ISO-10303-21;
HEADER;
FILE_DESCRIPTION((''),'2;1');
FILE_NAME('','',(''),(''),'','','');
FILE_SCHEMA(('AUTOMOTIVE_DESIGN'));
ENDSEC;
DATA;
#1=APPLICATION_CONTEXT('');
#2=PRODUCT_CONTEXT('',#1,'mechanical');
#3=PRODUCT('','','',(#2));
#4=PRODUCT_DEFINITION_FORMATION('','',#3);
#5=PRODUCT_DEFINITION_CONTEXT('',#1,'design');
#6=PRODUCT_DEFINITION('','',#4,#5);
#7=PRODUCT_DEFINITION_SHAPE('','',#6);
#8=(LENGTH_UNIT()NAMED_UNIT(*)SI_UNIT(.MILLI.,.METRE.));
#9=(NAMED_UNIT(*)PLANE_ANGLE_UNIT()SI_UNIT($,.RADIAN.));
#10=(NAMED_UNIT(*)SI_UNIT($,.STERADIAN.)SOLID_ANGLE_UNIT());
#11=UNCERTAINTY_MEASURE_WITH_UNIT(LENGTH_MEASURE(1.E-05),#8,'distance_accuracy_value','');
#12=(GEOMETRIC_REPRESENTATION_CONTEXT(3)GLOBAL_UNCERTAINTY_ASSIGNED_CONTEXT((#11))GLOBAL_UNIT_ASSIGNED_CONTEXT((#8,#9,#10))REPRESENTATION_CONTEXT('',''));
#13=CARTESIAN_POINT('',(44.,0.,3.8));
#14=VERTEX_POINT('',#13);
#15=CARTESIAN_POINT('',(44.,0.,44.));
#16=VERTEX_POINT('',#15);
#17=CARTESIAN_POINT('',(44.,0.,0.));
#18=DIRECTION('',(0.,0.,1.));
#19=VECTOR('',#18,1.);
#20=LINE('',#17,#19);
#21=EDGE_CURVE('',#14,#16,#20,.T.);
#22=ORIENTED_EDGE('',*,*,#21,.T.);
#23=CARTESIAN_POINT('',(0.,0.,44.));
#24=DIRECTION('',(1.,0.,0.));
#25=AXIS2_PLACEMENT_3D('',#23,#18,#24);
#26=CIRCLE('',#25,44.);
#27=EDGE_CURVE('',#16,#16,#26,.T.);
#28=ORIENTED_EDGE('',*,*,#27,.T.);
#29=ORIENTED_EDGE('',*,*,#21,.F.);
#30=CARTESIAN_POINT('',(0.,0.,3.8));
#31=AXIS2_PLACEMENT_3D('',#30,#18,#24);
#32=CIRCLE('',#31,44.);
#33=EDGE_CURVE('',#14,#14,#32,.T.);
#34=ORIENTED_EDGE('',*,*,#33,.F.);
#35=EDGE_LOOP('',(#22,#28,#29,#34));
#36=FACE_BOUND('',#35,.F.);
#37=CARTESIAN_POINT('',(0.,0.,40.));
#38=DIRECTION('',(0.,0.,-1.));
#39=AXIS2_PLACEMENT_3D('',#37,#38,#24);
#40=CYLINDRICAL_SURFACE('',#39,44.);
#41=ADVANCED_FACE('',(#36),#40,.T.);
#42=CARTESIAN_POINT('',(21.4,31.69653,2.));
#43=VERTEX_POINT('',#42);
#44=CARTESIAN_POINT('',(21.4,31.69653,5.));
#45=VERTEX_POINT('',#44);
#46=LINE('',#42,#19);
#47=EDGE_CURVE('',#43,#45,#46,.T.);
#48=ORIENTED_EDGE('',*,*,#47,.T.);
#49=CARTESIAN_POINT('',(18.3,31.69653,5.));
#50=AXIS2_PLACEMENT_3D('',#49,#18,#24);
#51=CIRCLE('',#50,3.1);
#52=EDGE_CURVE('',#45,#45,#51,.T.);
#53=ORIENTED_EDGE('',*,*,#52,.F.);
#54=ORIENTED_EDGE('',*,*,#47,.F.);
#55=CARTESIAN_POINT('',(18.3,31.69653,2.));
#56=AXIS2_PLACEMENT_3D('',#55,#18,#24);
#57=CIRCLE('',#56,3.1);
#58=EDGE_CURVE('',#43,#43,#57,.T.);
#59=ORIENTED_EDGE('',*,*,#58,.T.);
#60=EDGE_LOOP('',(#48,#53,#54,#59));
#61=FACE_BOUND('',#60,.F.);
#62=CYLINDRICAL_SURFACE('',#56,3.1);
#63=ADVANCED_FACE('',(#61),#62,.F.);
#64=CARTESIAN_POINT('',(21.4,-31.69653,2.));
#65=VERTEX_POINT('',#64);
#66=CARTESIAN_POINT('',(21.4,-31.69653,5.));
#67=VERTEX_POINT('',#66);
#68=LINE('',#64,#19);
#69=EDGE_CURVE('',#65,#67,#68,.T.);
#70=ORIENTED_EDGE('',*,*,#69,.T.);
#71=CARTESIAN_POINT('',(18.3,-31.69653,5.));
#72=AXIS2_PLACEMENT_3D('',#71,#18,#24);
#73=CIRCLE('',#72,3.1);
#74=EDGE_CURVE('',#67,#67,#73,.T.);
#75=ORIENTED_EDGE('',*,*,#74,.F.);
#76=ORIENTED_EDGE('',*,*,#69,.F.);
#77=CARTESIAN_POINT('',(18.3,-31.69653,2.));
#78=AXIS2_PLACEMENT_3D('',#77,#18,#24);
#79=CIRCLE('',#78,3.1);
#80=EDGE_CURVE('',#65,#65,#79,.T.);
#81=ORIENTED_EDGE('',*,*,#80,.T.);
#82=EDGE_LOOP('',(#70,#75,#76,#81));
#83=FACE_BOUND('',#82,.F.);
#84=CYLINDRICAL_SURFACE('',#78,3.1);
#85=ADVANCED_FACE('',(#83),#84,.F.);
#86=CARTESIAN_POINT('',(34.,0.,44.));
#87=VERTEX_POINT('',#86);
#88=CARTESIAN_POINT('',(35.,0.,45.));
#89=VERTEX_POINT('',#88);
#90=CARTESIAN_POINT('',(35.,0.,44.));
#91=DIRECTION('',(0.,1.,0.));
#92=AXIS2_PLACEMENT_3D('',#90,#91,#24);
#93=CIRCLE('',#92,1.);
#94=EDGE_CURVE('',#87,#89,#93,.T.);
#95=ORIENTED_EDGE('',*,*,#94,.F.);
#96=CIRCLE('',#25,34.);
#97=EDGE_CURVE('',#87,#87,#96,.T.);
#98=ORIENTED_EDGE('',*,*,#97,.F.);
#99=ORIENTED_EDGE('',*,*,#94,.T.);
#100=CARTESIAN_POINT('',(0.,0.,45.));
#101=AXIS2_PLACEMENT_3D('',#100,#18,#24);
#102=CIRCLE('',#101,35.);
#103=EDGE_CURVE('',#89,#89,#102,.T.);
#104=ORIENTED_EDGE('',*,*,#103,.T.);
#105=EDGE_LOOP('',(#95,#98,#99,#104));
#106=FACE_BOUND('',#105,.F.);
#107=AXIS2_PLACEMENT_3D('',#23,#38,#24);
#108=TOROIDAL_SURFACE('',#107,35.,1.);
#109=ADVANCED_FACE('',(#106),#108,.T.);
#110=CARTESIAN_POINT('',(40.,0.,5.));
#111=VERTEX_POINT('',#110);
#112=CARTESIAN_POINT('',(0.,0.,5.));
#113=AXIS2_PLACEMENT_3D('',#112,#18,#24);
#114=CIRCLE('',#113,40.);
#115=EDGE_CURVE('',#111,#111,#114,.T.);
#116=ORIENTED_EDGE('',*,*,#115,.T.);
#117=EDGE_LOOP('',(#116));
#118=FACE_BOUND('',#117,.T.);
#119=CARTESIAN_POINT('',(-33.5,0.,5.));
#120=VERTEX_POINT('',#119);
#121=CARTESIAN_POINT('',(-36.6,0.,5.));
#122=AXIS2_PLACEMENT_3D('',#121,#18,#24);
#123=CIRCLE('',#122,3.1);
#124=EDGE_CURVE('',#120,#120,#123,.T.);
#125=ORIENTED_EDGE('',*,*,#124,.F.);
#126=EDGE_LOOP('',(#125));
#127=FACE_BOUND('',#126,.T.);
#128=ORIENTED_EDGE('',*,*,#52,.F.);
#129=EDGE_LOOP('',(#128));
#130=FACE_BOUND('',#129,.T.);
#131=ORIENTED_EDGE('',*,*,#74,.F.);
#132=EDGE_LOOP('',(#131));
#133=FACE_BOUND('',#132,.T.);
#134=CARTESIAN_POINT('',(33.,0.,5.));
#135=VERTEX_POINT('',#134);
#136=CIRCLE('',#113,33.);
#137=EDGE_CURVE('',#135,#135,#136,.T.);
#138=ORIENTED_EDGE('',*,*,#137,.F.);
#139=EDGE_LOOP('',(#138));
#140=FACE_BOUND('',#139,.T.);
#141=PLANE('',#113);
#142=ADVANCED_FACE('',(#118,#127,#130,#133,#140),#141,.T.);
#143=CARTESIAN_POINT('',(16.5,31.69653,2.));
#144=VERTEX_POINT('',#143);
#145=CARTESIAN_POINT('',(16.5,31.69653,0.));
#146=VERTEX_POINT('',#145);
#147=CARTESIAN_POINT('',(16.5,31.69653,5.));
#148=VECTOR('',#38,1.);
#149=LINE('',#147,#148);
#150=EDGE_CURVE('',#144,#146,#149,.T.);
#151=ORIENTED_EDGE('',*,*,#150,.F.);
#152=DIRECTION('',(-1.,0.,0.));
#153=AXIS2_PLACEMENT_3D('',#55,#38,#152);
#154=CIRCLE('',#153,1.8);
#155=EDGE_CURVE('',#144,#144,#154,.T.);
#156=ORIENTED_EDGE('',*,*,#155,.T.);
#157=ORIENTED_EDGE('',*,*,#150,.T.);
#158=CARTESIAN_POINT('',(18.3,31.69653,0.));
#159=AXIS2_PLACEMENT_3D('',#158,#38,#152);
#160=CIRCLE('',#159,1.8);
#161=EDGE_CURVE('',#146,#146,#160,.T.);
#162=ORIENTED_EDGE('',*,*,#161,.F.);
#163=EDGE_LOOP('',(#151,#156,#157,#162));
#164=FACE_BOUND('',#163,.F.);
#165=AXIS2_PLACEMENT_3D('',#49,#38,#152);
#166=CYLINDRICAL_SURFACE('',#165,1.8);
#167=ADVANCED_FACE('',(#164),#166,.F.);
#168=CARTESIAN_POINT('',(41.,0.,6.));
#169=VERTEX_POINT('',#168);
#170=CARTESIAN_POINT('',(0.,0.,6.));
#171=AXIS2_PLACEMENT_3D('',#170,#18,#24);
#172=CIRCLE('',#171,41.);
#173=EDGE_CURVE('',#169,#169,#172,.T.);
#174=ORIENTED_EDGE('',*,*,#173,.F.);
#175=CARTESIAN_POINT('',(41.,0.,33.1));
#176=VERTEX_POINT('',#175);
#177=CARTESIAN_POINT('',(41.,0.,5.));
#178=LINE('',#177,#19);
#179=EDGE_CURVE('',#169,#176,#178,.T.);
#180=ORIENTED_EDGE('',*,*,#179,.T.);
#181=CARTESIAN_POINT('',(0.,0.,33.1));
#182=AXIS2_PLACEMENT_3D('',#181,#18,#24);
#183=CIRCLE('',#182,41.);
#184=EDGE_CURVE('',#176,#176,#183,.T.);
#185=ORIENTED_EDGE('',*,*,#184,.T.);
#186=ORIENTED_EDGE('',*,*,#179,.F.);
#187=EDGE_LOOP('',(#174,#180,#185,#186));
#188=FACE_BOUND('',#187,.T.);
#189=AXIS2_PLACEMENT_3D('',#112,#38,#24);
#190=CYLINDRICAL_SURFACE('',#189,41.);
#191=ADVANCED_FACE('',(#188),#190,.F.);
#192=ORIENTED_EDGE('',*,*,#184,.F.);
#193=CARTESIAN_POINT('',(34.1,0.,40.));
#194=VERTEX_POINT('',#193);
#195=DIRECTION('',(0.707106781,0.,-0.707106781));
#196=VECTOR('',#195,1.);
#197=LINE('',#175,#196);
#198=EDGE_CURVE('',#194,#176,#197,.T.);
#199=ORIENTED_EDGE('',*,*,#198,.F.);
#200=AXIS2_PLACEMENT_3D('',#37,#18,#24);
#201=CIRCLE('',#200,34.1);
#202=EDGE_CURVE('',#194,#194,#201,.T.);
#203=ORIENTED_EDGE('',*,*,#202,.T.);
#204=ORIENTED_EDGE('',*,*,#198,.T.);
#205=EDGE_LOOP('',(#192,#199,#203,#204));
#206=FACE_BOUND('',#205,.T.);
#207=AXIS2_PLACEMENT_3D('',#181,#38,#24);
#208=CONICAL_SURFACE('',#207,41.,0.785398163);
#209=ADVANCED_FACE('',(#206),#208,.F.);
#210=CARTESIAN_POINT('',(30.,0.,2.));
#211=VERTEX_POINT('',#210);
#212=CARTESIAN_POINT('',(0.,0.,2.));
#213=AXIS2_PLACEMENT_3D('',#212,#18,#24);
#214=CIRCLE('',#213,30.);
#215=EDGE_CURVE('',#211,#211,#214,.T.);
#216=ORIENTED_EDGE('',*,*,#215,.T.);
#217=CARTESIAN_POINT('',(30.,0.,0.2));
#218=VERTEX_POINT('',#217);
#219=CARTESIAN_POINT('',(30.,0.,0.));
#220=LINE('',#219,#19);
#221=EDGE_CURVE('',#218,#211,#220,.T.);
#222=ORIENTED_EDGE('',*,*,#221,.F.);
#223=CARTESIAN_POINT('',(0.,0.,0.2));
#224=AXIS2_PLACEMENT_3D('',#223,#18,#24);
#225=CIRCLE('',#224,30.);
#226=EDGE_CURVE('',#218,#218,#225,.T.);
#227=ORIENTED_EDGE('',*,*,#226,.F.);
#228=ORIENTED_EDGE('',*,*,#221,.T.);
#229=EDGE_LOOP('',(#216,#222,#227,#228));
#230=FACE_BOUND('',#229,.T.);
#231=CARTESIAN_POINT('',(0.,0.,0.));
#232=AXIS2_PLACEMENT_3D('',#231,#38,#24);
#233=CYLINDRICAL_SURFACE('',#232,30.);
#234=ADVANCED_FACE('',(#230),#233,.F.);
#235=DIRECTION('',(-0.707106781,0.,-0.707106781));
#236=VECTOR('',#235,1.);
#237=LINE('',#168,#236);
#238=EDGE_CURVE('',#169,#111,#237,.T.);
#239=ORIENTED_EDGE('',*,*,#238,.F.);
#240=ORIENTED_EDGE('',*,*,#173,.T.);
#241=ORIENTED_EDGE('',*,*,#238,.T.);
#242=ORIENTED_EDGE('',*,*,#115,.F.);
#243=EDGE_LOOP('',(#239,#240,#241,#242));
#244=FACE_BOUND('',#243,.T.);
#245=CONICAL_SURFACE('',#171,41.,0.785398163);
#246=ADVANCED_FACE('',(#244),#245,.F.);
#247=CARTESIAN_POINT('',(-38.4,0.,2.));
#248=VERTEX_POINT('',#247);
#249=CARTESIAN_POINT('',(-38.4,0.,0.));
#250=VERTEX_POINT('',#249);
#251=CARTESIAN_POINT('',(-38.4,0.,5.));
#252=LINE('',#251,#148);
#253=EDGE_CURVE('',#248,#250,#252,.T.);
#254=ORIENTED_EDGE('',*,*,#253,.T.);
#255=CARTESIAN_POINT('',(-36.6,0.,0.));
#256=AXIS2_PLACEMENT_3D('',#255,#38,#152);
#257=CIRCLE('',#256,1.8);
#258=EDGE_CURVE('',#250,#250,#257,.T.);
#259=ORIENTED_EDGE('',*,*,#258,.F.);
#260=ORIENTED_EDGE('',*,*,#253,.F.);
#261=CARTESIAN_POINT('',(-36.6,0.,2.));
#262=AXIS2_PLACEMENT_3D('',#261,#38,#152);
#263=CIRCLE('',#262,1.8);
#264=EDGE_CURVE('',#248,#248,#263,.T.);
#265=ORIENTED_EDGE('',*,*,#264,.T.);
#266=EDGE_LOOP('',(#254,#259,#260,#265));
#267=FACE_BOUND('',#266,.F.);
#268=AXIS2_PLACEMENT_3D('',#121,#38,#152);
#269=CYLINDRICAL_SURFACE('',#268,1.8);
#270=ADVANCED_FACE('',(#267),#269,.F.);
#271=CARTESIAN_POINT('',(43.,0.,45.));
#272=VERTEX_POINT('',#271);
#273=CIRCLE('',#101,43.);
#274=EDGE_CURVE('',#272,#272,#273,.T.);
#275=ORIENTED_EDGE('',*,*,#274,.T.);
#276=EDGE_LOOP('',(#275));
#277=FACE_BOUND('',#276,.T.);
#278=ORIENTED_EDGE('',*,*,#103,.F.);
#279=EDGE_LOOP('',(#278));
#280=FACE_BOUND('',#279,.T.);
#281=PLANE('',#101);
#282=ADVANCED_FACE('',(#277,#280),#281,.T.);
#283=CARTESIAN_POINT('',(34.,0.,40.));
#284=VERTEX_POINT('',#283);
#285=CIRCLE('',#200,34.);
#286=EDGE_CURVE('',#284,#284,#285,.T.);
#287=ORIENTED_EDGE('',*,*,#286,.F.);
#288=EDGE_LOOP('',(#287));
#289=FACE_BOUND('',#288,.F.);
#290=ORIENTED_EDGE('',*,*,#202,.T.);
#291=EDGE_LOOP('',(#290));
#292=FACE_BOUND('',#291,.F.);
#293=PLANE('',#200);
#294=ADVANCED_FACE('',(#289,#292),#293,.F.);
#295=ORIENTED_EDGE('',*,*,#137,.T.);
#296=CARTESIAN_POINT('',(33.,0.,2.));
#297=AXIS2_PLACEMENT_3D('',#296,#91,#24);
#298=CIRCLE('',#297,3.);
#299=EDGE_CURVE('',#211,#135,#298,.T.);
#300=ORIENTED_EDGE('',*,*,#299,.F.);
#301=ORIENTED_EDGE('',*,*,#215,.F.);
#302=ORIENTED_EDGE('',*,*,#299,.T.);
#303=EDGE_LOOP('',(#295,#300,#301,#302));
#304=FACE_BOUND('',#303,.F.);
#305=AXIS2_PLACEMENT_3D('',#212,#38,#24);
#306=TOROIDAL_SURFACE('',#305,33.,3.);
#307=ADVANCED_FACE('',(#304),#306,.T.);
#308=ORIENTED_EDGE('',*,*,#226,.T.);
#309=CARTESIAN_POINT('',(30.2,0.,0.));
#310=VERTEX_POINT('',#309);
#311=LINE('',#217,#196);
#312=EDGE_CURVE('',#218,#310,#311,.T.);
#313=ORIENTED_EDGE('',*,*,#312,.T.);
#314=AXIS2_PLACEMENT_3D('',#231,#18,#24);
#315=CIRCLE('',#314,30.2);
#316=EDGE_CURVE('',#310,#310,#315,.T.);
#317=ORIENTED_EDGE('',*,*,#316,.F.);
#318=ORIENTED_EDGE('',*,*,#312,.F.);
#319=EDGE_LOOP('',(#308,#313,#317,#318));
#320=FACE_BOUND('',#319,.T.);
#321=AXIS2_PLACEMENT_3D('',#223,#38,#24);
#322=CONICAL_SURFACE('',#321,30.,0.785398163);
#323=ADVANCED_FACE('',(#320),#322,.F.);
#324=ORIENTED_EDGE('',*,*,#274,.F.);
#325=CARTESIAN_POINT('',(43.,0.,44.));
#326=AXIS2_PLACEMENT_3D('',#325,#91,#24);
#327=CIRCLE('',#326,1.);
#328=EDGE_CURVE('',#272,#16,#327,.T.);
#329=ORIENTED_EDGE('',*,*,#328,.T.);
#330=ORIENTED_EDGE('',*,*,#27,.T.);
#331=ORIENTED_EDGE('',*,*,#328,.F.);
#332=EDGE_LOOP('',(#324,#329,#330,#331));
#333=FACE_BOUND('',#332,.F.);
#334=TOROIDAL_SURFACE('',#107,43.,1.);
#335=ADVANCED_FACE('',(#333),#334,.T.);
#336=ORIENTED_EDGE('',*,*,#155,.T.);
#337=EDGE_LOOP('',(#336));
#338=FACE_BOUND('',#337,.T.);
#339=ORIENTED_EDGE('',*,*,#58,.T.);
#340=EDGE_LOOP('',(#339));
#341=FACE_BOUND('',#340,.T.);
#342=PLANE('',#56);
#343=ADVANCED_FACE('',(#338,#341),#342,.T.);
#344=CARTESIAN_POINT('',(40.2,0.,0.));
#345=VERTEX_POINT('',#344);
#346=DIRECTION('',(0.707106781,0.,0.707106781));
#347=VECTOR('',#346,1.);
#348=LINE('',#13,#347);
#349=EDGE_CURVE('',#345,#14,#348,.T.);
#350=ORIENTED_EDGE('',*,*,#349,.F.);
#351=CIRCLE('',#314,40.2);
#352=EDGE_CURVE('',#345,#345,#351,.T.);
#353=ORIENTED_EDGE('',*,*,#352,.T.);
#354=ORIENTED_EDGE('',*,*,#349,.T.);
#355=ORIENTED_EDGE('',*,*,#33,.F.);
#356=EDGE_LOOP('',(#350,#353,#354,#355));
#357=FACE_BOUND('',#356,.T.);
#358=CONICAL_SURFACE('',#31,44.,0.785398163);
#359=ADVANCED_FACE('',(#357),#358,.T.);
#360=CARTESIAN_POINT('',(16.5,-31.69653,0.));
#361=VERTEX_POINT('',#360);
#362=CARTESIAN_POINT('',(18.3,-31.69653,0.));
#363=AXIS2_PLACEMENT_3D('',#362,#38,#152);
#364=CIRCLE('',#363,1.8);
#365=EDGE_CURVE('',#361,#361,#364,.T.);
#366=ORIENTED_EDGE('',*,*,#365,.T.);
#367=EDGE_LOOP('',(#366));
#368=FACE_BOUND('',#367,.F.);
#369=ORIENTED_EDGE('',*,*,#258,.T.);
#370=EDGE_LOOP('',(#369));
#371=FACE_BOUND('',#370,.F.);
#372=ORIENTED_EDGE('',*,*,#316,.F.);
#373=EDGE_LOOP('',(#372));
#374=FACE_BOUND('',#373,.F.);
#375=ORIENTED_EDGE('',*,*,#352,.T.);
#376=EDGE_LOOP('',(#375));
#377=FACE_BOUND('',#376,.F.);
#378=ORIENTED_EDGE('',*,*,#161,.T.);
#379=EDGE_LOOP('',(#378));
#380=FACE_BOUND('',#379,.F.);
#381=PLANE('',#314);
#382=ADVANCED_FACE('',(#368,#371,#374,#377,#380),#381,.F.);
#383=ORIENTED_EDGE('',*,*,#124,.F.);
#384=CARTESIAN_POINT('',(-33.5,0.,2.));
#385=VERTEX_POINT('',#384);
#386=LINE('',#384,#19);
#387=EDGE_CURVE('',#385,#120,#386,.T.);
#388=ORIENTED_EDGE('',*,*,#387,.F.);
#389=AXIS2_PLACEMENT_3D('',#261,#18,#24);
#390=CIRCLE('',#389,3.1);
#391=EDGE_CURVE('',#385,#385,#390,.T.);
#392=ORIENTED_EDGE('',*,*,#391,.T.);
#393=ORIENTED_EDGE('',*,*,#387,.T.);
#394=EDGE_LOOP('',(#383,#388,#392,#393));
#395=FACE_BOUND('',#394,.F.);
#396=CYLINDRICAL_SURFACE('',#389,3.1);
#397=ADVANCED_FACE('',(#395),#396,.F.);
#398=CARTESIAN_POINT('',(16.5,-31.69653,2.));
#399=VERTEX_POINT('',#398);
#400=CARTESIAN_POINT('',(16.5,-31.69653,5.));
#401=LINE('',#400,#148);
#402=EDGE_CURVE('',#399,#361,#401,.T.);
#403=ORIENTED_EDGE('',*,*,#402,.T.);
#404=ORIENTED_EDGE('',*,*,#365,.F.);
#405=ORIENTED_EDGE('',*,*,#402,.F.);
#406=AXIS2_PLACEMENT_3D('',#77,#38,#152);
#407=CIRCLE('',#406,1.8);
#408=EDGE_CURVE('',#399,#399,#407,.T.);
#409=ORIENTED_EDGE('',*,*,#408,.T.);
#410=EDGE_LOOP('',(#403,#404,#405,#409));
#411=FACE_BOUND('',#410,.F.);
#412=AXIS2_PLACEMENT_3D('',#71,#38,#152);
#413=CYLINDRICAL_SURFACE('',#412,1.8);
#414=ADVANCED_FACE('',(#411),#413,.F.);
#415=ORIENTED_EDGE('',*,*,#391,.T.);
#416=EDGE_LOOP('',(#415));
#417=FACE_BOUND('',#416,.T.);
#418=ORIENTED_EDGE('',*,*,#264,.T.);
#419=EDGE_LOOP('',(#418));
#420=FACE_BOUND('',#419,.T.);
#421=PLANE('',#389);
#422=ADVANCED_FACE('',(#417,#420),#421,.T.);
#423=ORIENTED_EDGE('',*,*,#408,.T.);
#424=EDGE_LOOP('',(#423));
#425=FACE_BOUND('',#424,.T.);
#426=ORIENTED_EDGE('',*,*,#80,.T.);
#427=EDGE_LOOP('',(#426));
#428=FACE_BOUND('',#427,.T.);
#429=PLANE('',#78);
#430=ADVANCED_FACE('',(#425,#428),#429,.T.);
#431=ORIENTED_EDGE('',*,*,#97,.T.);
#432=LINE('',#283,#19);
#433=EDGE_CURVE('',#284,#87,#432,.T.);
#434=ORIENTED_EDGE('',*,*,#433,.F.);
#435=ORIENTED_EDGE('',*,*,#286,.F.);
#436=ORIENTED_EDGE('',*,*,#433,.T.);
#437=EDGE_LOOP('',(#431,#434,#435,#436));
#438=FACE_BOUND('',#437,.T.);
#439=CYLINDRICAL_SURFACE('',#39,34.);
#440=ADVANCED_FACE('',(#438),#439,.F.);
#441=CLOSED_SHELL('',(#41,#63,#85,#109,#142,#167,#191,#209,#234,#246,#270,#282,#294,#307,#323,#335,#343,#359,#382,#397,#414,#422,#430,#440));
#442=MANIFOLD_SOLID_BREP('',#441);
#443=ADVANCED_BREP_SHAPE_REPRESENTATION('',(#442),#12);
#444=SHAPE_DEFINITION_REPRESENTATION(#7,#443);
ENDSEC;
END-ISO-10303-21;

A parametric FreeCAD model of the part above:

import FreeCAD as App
import Part
import Sketcher

V = App.Vector


def edges_at(feature, points):
    """Names of the edges that pass closest to the given points."""
    edges = feature.Shape.Edges
    near = lambda p: min(range(len(edges)), key=lambda i: edges[i].distToShape(Part.Vertex(*p))[0])
    return sorted({f"Edge{near(p) + 1}" for p in points})

doc = App.newDocument("Part")
body = doc.addObject("PartDesign::Body", "Body")

# Sketch on XY plane
sketch1 = doc.addObject("Sketcher::SketchObject", "Sketch")
body.addObject(sketch1)
sketch1.AttachmentSupport = (doc.XY_Plane, [""])
sketch1.MapMode = "FlatFace"
sketch1.addGeometry([
    Part.Circle(V(0, 0, 0), V(0, 0, 1), 44),
    Part.Circle(V(0, 0, 0), V(0, 0, 1), 30),
], False)
sketch1.addConstraint([
    Sketcher.Constraint("Coincident", 0, 3, -1, 1),
    Sketcher.Constraint("Coincident", 1, 3, -1, 1),
    Sketcher.Constraint("Diameter", 0, 88.0),
    Sketcher.Constraint("Diameter", 1, 60.0),
])
pad1 = doc.addObject("PartDesign::Pad", "Pad")
body.addObject(pad1)
pad1.Profile = sketch1
pad1.Length = 5

# Sketch on XY plane
sketch2 = doc.addObject("Sketcher::SketchObject", "Sketch001")
body.addObject(sketch2)
sketch2.AttachmentSupport = (doc.XY_Plane, [""])
sketch2.MapMode = "FlatFace"
sketch2.AttachmentOffset = App.Placement(V(0, 0, 5), App.Rotation())
sketch2.addGeometry([
    Part.Circle(V(0, 0, 0), V(0, 0, 1), 44),
    Part.Circle(V(0, 0, 0), V(0, 0, 1), 41),
], False)
sketch2.addConstraint([
    Sketcher.Constraint("Coincident", 0, 3, -1, 1),
    Sketcher.Constraint("Coincident", 1, 3, -1, 1),
    Sketcher.Constraint("Diameter", 0, 88.0),
    Sketcher.Constraint("Diameter", 1, 82.0),
])
pad2 = doc.addObject("PartDesign::Pad", "Pad001")
body.addObject(pad2)
pad2.Profile = sketch2
pad2.Length = 35

# Sketch on XY plane
sketch3 = doc.addObject("Sketcher::SketchObject", "Sketch002")
body.addObject(sketch3)
sketch3.AttachmentSupport = (doc.XY_Plane, [""])
sketch3.MapMode = "FlatFace"
sketch3.AttachmentOffset = App.Placement(V(0, 0, 40), App.Rotation())
sketch3.addGeometry([
    Part.Circle(V(0, 0, 0), V(0, 0, 1), 44),
    Part.Circle(V(0, 0, 0), V(0, 0, 1), 34),
], False)
sketch3.addConstraint([
    Sketcher.Constraint("Coincident", 0, 3, -1, 1),
    Sketcher.Constraint("Coincident", 1, 3, -1, 1),
    Sketcher.Constraint("Diameter", 0, 88.0),
    Sketcher.Constraint("Diameter", 1, 68.0),
])
pad3 = doc.addObject("PartDesign::Pad", "Pad002")
body.addObject(pad3)
pad3.Profile = sketch3
pad3.Length = 5

# Sketch on XY plane
sketch4 = doc.addObject("Sketcher::SketchObject", "Sketch003")
body.addObject(sketch4)
sketch4.AttachmentSupport = (doc.XY_Plane, [""])
sketch4.MapMode = "FlatFace"
sketch4.AttachmentOffset = App.Placement(V(0, 0, 5), App.Rotation())
sketch4.addGeometry([
    Part.Circle(V(-36.6, 0, 0), V(0, 0, 1), 1.8),
    Part.Circle(V(18.3, 31.7, 0), V(0, 0, 1), 1.8),
    Part.Circle(V(18.3, -31.7, 0), V(0, 0, 1), 1.8),
], False)
sketch4.addConstraint([
    Sketcher.Constraint("Equal", 0, 1),
    Sketcher.Constraint("Equal", 1, 2),
    Sketcher.Constraint("Symmetric", 1, 3, 2, 3, -1),
    Sketcher.Constraint("PointOnObject", 0, 3, -1),
    Sketcher.Constraint("Diameter", 0, 3.6),
    Sketcher.Constraint("DistanceX", 0, 3, -1, 1, 36.6),
    Sketcher.Constraint("DistanceX", -1, 1, 1, 3, 18.3),
    Sketcher.Constraint("DistanceY", -1, 1, 1, 3, 31.69653),
])
doc.recompute()
hole = doc.addObject("PartDesign::Hole", "Hole")
body.addObject(hole)
hole.Profile = sketch4
hole.ThreadType = "None"
hole.Diameter = 3.6
hole.DepthType = "Dimension"
hole.Depth = 5
hole.DrillPoint = "Flat"
hole.HoleCutType = "Counterbore"
hole.HoleCutDiameter = 6.2
hole.HoleCutDepth = 3
doc.recompute()

chamfer = doc.addObject("PartDesign::Chamfer", "Chamfer")
body.addObject(chamfer)
chamfer.Base = (hole, edges_at(hole, [(-41, 0, 40)]))
chamfer.Size = 6.9
doc.recompute()

fillet = doc.addObject("PartDesign::Fillet", "Fillet")
body.addObject(fillet)
fillet.Base = (chamfer, edges_at(chamfer, [(-34, 0, 45), (-44, 0, 45)]))
fillet.Radius = 1
doc.recompute()

chamfer2 = doc.addObject("PartDesign::Chamfer", "Chamfer001")
body.addObject(chamfer2)
chamfer2.Base = (fillet, edges_at(fillet, [(-41, 0, 5)]))
chamfer2.Size = 1
doc.recompute()

chamfer3 = doc.addObject("PartDesign::Chamfer", "Chamfer002")
body.addObject(chamfer3)
chamfer3.Base = (chamfer2, edges_at(chamfer2, [(-44, 0, 0)]))
chamfer3.Size = 3.8
doc.recompute()

fillet2 = doc.addObject("PartDesign::Fillet", "Fillet001")
body.addObject(fillet2)
fillet2.Base = (chamfer3, edges_at(chamfer3, [(-30, 0, 5)]))
fillet2.Radius = 3
doc.recompute()

chamfer4 = doc.addObject("PartDesign::Chamfer", "Chamfer003")
body.addObject(chamfer4)
chamfer4.Base = (fillet2, edges_at(fillet2, [(-30, 0, 0)]))
chamfer4.Size = 0.2

doc.recompute()
